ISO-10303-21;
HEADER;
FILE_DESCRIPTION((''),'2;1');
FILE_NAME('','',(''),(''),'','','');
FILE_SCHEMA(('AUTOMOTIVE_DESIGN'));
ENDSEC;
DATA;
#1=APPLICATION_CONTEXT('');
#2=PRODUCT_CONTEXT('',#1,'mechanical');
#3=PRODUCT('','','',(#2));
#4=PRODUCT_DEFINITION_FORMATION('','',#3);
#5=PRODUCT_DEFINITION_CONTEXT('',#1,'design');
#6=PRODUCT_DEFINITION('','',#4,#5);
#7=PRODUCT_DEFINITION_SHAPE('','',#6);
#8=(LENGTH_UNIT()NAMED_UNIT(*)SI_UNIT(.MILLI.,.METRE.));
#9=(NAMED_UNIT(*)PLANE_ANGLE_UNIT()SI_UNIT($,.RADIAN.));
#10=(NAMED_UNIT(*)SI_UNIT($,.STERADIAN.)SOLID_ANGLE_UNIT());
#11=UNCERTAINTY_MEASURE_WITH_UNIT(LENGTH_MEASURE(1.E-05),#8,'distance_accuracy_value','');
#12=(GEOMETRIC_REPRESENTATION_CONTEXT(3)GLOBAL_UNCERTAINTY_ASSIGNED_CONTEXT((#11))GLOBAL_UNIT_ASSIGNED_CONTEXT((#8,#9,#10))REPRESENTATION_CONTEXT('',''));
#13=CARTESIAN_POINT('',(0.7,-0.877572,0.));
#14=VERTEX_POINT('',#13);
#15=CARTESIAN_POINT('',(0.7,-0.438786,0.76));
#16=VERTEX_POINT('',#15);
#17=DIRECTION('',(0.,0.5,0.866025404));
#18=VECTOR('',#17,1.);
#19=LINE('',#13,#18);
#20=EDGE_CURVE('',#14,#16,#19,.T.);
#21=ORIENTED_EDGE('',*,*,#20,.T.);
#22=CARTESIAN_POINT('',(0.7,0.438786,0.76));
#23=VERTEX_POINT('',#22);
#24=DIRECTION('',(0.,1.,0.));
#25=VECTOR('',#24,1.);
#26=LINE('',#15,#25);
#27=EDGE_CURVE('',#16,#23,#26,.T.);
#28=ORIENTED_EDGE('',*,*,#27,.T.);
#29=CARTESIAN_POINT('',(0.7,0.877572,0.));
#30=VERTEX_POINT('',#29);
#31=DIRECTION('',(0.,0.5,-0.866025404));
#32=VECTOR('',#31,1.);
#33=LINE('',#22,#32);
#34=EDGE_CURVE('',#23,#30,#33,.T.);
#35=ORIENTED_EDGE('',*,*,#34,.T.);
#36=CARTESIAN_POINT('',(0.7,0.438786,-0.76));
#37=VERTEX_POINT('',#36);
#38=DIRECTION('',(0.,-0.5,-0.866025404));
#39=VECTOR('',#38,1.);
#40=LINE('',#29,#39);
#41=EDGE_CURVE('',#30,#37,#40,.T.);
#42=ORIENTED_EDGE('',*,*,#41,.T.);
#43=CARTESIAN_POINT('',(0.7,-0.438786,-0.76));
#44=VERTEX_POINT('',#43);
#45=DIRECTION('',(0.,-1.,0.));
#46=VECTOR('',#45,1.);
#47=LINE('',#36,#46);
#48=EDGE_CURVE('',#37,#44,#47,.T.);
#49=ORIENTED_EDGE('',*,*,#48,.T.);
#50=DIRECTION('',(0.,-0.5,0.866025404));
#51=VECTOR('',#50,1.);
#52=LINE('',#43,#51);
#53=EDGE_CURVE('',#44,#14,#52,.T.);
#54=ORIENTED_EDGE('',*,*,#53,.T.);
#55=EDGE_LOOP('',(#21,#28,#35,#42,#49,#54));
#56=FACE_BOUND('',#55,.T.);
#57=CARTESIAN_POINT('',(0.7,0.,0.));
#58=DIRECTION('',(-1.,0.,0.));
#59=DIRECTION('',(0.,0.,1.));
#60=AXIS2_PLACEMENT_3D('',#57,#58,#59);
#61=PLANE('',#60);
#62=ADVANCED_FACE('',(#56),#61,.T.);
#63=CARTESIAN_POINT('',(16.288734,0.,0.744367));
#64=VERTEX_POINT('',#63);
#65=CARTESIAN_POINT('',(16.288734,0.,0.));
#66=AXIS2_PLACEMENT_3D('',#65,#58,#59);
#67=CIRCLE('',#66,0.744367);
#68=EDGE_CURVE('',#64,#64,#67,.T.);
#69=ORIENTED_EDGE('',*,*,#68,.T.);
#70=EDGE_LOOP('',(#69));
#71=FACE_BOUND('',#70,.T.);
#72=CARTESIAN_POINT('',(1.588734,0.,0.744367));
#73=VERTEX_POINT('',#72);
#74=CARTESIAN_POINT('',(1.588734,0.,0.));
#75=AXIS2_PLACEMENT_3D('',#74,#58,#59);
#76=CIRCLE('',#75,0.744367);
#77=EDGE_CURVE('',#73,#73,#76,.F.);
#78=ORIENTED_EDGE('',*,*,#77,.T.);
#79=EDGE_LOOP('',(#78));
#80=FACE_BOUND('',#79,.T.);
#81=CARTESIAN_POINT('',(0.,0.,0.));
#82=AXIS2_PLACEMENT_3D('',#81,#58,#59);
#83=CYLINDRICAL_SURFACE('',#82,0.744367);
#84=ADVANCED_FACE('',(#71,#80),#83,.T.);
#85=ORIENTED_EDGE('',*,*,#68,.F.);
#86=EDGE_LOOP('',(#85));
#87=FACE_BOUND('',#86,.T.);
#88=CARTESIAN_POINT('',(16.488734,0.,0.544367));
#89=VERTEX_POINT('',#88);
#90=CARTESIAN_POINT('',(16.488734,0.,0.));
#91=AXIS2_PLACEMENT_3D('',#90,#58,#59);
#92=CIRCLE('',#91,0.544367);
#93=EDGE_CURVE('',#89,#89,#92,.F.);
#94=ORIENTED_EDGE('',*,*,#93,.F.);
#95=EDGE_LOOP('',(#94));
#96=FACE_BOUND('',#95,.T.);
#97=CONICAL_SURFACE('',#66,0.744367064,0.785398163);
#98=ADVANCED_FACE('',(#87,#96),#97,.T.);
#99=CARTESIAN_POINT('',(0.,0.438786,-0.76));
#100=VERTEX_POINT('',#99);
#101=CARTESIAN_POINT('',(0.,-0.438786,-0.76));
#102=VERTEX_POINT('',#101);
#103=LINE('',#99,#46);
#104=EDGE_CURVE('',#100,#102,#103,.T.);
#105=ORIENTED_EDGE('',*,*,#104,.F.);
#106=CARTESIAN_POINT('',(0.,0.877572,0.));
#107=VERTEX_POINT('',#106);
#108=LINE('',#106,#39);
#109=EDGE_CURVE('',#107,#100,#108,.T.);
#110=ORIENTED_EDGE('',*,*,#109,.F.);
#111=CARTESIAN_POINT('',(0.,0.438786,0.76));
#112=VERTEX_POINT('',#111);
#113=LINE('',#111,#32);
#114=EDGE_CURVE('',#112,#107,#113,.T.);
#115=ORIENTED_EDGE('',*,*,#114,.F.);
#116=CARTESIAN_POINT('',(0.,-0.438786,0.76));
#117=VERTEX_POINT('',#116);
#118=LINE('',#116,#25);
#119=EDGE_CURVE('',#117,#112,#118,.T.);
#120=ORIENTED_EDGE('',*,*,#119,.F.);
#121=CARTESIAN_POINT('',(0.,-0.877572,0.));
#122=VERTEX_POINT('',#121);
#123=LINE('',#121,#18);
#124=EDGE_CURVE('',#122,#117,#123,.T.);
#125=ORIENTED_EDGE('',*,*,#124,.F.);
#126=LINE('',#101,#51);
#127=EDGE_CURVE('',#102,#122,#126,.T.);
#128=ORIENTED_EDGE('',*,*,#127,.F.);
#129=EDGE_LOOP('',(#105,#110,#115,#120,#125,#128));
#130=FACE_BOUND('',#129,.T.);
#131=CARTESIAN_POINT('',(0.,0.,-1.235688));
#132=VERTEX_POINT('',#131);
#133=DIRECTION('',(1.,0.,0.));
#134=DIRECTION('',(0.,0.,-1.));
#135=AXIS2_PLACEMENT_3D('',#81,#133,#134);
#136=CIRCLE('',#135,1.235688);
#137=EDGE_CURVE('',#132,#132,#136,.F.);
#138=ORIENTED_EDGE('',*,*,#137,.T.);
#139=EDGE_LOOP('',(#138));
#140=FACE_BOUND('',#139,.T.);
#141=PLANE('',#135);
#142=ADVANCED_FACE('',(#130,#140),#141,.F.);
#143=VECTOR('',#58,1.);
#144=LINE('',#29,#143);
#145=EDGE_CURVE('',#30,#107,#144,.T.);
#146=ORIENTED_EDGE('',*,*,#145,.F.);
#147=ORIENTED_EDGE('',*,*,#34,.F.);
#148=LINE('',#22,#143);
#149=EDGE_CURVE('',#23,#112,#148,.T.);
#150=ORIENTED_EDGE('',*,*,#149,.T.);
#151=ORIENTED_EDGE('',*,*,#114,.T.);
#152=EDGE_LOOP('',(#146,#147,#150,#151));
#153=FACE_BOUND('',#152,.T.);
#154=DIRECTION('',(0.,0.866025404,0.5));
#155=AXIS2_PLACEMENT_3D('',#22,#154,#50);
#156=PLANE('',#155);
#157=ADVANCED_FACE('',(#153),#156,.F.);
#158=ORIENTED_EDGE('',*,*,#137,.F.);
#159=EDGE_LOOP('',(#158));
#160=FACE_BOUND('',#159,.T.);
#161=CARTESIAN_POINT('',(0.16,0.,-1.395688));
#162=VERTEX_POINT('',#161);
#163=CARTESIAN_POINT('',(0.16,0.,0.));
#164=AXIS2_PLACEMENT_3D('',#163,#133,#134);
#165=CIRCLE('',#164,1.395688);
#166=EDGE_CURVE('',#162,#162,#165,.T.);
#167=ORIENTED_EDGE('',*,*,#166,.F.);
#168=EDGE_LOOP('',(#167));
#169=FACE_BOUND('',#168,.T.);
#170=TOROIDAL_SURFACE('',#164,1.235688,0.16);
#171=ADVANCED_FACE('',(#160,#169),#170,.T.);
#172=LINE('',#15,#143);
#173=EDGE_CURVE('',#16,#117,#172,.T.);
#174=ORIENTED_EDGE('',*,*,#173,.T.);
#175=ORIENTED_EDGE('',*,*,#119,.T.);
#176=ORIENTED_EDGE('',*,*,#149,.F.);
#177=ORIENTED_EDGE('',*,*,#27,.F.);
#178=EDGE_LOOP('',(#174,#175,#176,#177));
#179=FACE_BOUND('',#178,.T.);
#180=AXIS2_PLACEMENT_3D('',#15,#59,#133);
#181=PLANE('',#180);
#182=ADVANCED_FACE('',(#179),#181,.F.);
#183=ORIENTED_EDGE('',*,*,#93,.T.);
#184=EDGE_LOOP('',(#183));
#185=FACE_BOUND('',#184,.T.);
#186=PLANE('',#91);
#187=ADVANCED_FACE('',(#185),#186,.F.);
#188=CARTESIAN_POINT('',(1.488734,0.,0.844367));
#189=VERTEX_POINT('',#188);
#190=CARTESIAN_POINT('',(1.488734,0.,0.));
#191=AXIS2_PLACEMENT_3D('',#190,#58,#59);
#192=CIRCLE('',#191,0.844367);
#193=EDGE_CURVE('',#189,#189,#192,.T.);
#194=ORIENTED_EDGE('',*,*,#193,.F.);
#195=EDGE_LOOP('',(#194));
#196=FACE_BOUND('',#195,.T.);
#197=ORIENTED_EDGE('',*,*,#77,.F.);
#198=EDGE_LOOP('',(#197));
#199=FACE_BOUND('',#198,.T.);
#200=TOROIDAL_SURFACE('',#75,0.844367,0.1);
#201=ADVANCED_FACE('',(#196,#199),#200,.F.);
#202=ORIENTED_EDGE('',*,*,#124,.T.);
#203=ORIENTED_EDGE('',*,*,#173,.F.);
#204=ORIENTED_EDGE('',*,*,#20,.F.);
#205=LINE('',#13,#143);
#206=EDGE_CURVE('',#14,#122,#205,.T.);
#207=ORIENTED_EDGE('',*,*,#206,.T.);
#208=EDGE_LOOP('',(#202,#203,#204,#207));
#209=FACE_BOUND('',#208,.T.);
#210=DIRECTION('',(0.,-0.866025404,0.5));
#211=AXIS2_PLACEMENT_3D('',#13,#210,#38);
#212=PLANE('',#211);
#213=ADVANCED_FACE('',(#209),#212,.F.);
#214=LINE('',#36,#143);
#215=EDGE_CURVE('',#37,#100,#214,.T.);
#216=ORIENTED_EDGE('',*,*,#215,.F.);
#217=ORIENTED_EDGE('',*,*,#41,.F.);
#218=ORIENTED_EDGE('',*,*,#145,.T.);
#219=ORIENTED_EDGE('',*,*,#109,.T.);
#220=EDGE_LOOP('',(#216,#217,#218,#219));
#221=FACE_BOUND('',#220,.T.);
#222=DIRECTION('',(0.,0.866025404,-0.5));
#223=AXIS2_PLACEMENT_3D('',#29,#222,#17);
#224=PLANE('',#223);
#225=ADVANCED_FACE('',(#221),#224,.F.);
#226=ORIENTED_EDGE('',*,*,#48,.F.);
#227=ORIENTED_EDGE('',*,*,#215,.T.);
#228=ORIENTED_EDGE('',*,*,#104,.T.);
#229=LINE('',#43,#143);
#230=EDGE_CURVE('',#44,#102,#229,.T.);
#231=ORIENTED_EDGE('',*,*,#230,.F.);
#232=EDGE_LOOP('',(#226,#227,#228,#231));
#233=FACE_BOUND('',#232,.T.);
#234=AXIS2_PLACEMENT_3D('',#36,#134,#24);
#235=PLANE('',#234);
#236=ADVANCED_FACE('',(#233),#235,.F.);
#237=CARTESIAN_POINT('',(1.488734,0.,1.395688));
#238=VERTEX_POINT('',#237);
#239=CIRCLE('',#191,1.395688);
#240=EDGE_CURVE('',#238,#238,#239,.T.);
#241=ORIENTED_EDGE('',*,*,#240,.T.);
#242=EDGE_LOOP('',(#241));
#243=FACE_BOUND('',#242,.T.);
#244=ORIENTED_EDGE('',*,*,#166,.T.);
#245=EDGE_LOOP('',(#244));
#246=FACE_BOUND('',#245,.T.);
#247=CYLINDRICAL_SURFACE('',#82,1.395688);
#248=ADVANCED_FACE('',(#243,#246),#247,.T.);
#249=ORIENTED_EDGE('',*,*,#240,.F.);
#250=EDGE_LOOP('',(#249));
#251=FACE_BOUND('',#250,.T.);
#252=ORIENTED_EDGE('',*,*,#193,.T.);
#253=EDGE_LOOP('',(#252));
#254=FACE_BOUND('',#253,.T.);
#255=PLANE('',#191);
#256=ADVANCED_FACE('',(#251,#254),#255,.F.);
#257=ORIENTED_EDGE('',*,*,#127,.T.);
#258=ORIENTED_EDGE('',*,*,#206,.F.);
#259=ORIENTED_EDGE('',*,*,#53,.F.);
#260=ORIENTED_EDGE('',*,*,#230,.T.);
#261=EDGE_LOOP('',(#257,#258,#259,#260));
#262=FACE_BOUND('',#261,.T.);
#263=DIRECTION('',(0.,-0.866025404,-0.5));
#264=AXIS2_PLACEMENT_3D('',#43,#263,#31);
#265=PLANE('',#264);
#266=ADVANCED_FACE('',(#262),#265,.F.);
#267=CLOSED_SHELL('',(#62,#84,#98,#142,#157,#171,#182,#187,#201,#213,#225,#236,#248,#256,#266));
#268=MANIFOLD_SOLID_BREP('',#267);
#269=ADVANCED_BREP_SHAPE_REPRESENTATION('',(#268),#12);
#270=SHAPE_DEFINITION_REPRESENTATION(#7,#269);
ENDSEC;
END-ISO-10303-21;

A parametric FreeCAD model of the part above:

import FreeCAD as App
import Part
import Sketcher
from FreeCAD import Vector
Q = App.Units.Quantity


def edges_at(feature, points):
    """Names of the edges that pass closest to the given points."""
    edges = feature.Shape.Edges
    near = lambda p: min(range(len(edges)), key=lambda i: edges[i].distToShape(Part.Vertex(*p))[0])
    return sorted({f"Edge{near(p) + 1}" for p in points})


def add_polygon(sketch, points):
    """Adds a closed chain of lines whose ends are joined by coincident constraints."""
    first, n = sketch.GeometryCount, len(points)
    for a, b in zip(points, points[1:] + points[:1]):
        sketch.addGeometry(Part.LineSegment(App.Vector(*a, 0), App.Vector(*b, 0)), False)
    for i in range(n):
        sketch.addConstraint(Sketcher.Constraint("Coincident", first + i, 2, first + (i + 1) % n, 1))

doc = App.newDocument("Part")
body = doc.addObject("PartDesign::Body", "Body")

# Sketch on XY plane
sketch1 = body.newObject("Sketcher::SketchObject", "Sketch")
sketch1.AttachmentSupport = (doc.getObject("XY_Plane"), [""])
sketch1.MapMode = "FlatFace"
add_polygon(sketch1, [(0, 1.4), (0, 0), (16.5, 0), (16.5, 0.7), (1.5, 0.7), (1.5, 1.4)])  # lines 0-5
sketch1.addConstraint([
    Sketcher.Constraint("Vertical", 0),
    Sketcher.Constraint("Horizontal", 1),
    Sketcher.Constraint("Vertical", 2),
    Sketcher.Constraint("Horizontal", 3),
    Sketcher.Constraint("Vertical", 4),
    Sketcher.Constraint("Horizontal", 5),
    Sketcher.Constraint("Coincident", 0, 2, -1, 1),
    Sketcher.Constraint("DistanceX", 3, 2, 3, 1, 15.0),
    Sketcher.Constraint("DistanceY", 0, 2, 0, 1, 1.395688),
    Sketcher.Constraint("DistanceY", 4, 1, 4, 2, 0.651321),
    Sketcher.Constraint("DistanceX", 1, 1, 1, 2, 16.488734),
])
revolution = body.newObject("PartDesign::Revolution", "Revolution")
revolution.Profile = sketch1
revolution.ReferenceAxis = (sketch1, ["H_Axis"])
revolution.Angle = 360
doc.recompute()

fillet = body.newObject("PartDesign::Fillet", "Fillet")
fillet.Base = (revolution, edges_at(revolution, [(1.489, 0, -0.744)]))
fillet.Radius = 0.1
doc.recompute()

fillet2 = body.newObject("PartDesign::Fillet", "Fillet001")
fillet2.Base = (fillet, edges_at(fillet, [(0, 0, -1.396)]))
fillet2.Radius = 0.16
doc.recompute()

chamfer = body.newObject("PartDesign::Chamfer", "Chamfer")
chamfer.Base = (fillet2, edges_at(fillet2, [(16.489, 0, -0.744)]))
chamfer.Size = 0.2

# Sketch on YZ plane
sketch2 = body.newObject("Sketcher::SketchObject", "Sketch001")
sketch2.AttachmentSupport = (doc.getObject("YZ_Plane"), [""])
sketch2.MapMode = "FlatFace"
add_polygon(sketch2, [(0.9, 0), (0.4, -0.8), (-0.4, -0.8), (-0.9, 0), (-0.4, 0.8), (0.4, 0.8)])  # lines 0-5
sketch2.addConstraint([
    Sketcher.Constraint("Horizontal", 1),
    Sketcher.Constraint("Horizontal", 4),
    Sketcher.Constraint("Symmetric", 0, 2, 3, 2, -1, 1),
    Sketcher.Constraint("Symmetric", 2, 2, 5, 2, -1, 1),
    Sketcher.Constraint("PointOnObject", 2, 2, -1),
    Sketcher.Constraint("Parallel", 2, 5),
    Sketcher.Constraint("Vertical", 1, 2, 3, 2),
    Sketcher.Constraint("Angle", 0, Q("-120 deg")),
    Sketcher.Constraint("DistanceY", 0, 2, -1, 1, 0.76),
    Sketcher.Constraint("DistanceX", 1, 2, 1, 1, 0.877572),
])
pocket1 = body.newObject("PartDesign::Pocket", "Pocket")
pocket1.Profile = sketch2
pocket1.Length = 0.7
pocket1.Reversed = True

doc.recompute()
